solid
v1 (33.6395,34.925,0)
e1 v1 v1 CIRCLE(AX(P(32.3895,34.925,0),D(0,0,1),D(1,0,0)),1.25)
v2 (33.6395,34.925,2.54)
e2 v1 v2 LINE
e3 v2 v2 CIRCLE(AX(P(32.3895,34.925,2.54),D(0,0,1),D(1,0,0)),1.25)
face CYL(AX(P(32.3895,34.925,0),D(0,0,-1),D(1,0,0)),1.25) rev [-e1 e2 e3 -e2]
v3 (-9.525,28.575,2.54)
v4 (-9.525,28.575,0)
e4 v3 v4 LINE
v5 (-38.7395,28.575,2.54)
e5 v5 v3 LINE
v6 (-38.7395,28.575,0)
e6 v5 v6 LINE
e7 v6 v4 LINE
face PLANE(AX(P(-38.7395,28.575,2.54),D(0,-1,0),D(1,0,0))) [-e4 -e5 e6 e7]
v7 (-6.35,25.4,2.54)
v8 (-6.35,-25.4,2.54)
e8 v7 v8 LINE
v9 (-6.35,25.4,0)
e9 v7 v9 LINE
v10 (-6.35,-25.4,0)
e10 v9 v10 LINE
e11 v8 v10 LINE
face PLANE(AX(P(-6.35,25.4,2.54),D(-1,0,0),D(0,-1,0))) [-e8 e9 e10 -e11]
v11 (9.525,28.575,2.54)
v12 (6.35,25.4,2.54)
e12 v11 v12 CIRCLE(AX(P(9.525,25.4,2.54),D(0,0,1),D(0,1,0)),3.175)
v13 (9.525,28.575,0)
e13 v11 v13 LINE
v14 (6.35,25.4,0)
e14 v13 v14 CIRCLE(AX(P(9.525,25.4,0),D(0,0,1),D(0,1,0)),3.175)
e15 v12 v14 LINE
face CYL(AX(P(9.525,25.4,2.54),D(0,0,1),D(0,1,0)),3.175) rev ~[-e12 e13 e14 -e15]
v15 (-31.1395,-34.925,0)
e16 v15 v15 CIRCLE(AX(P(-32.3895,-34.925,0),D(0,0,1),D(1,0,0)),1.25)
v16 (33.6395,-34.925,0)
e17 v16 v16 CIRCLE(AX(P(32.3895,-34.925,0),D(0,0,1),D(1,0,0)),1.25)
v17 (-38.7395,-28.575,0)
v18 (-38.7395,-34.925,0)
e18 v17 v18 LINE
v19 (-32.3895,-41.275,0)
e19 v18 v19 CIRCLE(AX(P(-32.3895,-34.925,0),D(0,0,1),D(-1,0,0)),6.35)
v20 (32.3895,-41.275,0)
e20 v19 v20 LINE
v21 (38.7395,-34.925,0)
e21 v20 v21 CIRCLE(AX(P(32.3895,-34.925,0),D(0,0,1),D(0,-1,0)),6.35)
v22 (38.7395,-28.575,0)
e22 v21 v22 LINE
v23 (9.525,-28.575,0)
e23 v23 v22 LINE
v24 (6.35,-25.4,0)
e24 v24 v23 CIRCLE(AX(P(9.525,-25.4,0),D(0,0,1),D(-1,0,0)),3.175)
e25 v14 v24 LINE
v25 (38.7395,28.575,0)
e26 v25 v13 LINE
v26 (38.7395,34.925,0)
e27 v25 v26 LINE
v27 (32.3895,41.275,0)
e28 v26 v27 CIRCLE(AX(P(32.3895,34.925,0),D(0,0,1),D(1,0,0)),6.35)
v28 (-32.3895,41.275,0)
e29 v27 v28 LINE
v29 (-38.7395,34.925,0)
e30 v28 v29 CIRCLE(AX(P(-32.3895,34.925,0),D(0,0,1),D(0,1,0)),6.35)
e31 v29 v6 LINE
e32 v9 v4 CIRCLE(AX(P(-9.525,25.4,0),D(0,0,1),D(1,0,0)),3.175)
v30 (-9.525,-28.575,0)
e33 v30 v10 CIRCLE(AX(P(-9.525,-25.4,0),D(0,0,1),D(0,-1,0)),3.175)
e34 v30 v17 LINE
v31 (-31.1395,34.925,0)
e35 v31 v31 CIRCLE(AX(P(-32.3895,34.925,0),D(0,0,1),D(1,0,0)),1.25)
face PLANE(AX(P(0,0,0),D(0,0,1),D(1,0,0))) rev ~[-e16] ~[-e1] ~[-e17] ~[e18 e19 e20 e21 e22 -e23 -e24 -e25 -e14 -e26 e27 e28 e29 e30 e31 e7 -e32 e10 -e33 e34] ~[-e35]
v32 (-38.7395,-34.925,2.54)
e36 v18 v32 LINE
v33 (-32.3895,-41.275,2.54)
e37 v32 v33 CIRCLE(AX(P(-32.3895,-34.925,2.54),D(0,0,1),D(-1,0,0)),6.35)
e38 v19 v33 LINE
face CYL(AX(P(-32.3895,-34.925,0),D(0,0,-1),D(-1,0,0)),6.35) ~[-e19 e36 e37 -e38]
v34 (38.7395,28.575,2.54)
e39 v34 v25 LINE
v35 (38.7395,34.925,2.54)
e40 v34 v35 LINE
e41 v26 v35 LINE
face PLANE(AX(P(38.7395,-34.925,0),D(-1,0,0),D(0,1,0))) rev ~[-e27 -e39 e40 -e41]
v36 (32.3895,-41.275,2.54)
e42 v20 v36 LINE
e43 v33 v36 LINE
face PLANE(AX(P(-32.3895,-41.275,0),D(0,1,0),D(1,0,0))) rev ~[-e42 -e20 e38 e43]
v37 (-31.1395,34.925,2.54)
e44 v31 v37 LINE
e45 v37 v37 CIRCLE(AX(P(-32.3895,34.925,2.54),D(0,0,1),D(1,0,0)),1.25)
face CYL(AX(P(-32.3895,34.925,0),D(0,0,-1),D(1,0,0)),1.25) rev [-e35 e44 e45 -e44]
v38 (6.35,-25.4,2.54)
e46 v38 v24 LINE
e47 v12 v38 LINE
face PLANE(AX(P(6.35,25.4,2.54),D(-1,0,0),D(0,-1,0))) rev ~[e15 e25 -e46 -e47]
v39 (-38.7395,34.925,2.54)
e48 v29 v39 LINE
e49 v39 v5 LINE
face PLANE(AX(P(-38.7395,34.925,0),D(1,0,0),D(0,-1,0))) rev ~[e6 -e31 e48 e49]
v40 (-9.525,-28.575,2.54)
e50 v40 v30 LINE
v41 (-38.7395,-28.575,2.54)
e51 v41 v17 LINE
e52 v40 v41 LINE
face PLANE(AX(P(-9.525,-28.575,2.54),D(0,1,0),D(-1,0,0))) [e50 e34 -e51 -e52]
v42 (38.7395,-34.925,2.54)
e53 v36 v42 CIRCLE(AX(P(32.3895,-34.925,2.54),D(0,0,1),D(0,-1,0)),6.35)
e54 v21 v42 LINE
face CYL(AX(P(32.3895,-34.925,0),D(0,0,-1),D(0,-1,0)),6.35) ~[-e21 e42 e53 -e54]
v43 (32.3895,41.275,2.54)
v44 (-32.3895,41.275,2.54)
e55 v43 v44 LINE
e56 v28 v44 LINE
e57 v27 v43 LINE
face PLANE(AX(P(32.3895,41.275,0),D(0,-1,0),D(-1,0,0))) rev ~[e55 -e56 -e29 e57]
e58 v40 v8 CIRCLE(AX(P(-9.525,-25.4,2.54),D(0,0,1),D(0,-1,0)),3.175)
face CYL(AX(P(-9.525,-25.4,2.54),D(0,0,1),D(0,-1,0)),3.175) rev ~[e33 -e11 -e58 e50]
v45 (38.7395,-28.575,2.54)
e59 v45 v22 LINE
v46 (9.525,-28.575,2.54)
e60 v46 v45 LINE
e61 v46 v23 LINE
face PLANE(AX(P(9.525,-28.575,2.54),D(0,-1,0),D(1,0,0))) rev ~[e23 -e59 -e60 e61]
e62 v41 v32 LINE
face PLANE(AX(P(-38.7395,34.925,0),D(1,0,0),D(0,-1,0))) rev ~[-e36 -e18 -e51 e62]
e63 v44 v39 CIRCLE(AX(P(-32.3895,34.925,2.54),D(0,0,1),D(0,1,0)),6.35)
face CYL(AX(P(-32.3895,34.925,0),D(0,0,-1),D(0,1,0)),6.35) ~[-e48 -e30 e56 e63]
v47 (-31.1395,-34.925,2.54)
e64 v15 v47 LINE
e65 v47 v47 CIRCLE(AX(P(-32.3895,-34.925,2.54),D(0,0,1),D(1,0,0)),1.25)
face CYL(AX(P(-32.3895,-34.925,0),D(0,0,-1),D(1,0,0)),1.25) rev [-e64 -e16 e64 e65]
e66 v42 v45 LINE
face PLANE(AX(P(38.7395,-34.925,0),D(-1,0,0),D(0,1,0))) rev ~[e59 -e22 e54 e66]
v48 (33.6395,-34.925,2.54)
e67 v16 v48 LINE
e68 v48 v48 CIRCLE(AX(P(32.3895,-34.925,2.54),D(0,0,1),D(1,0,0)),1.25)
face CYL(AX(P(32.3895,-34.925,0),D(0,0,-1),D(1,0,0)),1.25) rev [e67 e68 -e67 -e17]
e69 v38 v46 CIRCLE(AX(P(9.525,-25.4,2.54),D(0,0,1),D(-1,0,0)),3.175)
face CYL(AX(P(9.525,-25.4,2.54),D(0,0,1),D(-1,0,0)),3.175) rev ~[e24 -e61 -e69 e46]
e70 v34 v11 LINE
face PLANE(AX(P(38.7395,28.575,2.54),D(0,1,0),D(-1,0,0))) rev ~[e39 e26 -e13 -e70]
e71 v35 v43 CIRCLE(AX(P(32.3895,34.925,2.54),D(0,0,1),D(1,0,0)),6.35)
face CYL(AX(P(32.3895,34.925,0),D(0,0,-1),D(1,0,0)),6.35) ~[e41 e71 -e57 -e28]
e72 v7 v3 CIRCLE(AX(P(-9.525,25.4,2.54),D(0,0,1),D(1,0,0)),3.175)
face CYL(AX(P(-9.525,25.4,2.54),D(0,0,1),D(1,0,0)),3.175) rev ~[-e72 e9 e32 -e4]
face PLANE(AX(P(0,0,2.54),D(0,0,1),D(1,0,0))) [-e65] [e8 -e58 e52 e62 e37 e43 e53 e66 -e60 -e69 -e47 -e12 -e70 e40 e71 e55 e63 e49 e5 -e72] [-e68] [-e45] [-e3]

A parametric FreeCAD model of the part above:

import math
import FreeCAD as App
import Part
import Sketcher
from FreeCAD import Vector
Q = App.Units.Quantity

doc = App.newDocument("Part")
body = doc.addObject("PartDesign::Body", "Body")

sketch1 = body.newObject("Sketcher::SketchObject", "Sketch")
sketch1.AttachmentSupport = (doc.getObject("XY_Plane"), [""])
sketch1.MapMode = "FlatFace"
sketch1.addGeometry([
    Part.ArcOfCircle(Part.Circle(Vector(32.4, 34.9, 0), Vector(0, 0, 1), 6.4), math.radians(0), math.radians(90)),
    Part.LineSegment(Vector(32.4, 41.3, 0), Vector(-32.4, 41.3, 0)),
    Part.ArcOfCircle(Part.Circle(Vector(-32.4, 34.9, 0), Vector(0, 0, 1), 6.4), math.radians(90), math.radians(180)),
    Part.LineSegment(Vector(-38.7, 34.9, 0), Vector(-38.7, -34.9, 0)),
    Part.ArcOfCircle(Part.Circle(Vector(-32.4, -34.9, 0), Vector(0, 0, 1), 6.4), math.radians(180), math.radians(270)),
    Part.LineSegment(Vector(-32.4, -41.3, 0), Vector(32.4, -41.3, 0)),
    Part.ArcOfCircle(Part.Circle(Vector(32.4, -34.9, 0), Vector(0, 0, 1), 6.4), math.radians(-90), math.radians(0)),
    Part.LineSegment(Vector(38.7, -34.9, 0), Vector(38.7, 34.9, 0)),
    Part.Circle(Vector(-32.4, -34.9, 0), Vector(0, 0, 1), 1.2),
    Part.Circle(Vector(32.4, -34.9, 0), Vector(0, 0, 1), 1.2),
    Part.Circle(Vector(-32.4, 34.9, 0), Vector(0, 0, 1), 1.2),
    Part.Circle(Vector(32.4, 34.9, 0), Vector(0, 0, 1), 1.2),
], False)
sketch1.addConstraint([
    Sketcher.Constraint("Tangent", 0, 2, 1, 1),
    Sketcher.Constraint("Tangent", 1, 2, 2, 1),
    Sketcher.Constraint("Tangent", 2, 2, 3, 1),
    Sketcher.Constraint("Tangent", 3, 2, 4, 1),
    Sketcher.Constraint("Tangent", 4, 2, 5, 1),
    Sketcher.Constraint("Tangent", 5, 2, 6, 1),
    Sketcher.Constraint("Tangent", 6, 2, 7, 1),
    Sketcher.Constraint("Tangent", 7, 2, 0, 1),
    Sketcher.Constraint("Horizontal", 1),
    Sketcher.Constraint("Vertical", 3),
    Sketcher.Constraint("Horizontal", 5),
    Sketcher.Constraint("Vertical", 7),
    Sketcher.Constraint("Coincident", 8, 3, 4, 3),
    Sketcher.Constraint("Coincident", 9, 3, 6, 3),
    Sketcher.Constraint("Coincident", 10, 3, 2, 3),
    Sketcher.Constraint("Coincident", 11, 3, 0, 3),
    Sketcher.Constraint("Equal", 0, 2),
    Sketcher.Constraint("Equal", 2, 4),
    Sketcher.Constraint("Equal", 4, 6),
    Sketcher.Constraint("Equal", 8, 9),
    Sketcher.Constraint("Equal", 9, 10),
    Sketcher.Constraint("Equal", 10, 11),
    Sketcher.Constraint("Symmetric", 0, 3, 4, 3, -1, 1),
    Sketcher.Constraint("Radius", 0, Q("0.25 in")),
    Sketcher.Constraint("DistanceY", 6, 3, 0, 2, Q("3 in")),
    Sketcher.Constraint("Diameter", 8, 2.5),
    Sketcher.Constraint("DistanceX", 1, 2, 1, 1, 64.779),
])
pad1 = body.newObject("PartDesign::Pad", "Pad")
pad1.Profile = sketch1
pad1.Length = Q("0.1 in")

sketch2 = body.newObject("Sketcher::SketchObject", "Sketch001")
sketch2.AttachmentSupport = (doc.getObject("XY_Plane"), [""])
sketch2.MapMode = "FlatFace"
sketch2.AttachmentOffset = App.Placement(Vector(0, 0, 0.1 * 25.4), App.Rotation())
sketch2.addGeometry([
    Part.LineSegment(Vector(-9.5, 28.6, 0), Vector(-38.7, 28.6, 0)),
    Part.LineSegment(Vector(-38.7, 28.6, 0), Vector(-38.7, -28.6, 0)),
    Part.LineSegment(Vector(-38.7, -28.6, 0), Vector(-9.5, -28.6, 0)),
    Part.ArcOfCircle(Part.Circle(Vector(-9.5, -25.4, 0), Vector(0, 0, 1), 3.2), math.radians(-90), math.radians(0)),
    Part.LineSegment(Vector(-6.3, -25.4, 0), Vector(-6.3, 25.4, 0)),
    Part.ArcOfCircle(Part.Circle(Vector(-9.5, 25.4, 0), Vector(0, 0, 1), 3.2), math.radians(0), math.radians(90)),
    Part.LineSegment(Vector(38.7, -28.6, 0), Vector(38.7, 28.6, 0)),
    Part.LineSegment(Vector(38.7, 28.6, 0), Vector(9.5, 28.6, 0)),
    Part.ArcOfCircle(Part.Circle(Vector(9.5, 25.4, 0), Vector(0, 0, 1), 3.2), math.radians(90), math.radians(180)),
    Part.LineSegment(Vector(6.3, 25.4, 0), Vector(6.3, -25.4, 0)),
    Part.ArcOfCircle(Part.Circle(Vector(9.5, -25.4, 0), Vector(0, 0, 1), 3.2), math.radians(180), math.radians(270)),
    Part.LineSegment(Vector(9.5, -28.6, 0), Vector(38.7, -28.6, 0)),
], False)
sketch2.addConstraint([
    Sketcher.Constraint("Coincident", 0, 2, 1, 1),
    Sketcher.Constraint("Coincident", 1, 2, 2, 1),
    Sketcher.Constraint("Tangent", 2, 2, 3, 1),
    Sketcher.Constraint("Tangent", 3, 2, 4, 1),
    Sketcher.Constraint("Tangent", 4, 2, 5, 1),
    Sketcher.Constraint("Tangent", 5, 2, 0, 1),
    Sketcher.Constraint("Coincident", 6, 2, 7, 1),
    Sketcher.Constraint("Tangent", 7, 2, 8, 1),
    Sketcher.Constraint("Tangent", 8, 2, 9, 1),
    Sketcher.Constraint("Tangent", 9, 2, 10, 1),
    Sketcher.Constraint("Tangent", 10, 2, 11, 1),
    Sketcher.Constraint("Coincident", 11, 2, 6, 1),
    Sketcher.Constraint("Horizontal", 0),
    Sketcher.Constraint("Vertical", 1),
    Sketcher.Constraint("Horizontal", 2),
    Sketcher.Constraint("Vertical", 4),
    Sketcher.Constraint("Vertical", 6),
    Sketcher.Constraint("Horizontal", 7),
    Sketcher.Constraint("Vertical", 9),
    Sketcher.Constraint("Horizontal", 11),
    Sketcher.Constraint("Equal", 3, 5),
    Sketcher.Constraint("Equal", 5, 8),
    Sketcher.Constraint("Equal", 8, 10),
    Sketcher.Constraint("Symmetric", 3, 3, 8, 3, -1, 1),
    Sketcher.Constraint("Symmetric", 0, 2, 11, 2, -1, 1),
    Sketcher.Constraint("Horizontal", 5, 3, 8, 3),
    Sketcher.Constraint("Radius", 3, Q("0.125 in")),
    Sketcher.Constraint("DistanceY", 4, 1, 4, 2, Q("2 in")),
    Sketcher.Constraint("DistanceX", 3, 2, -1, 1, Q("0.25 in")),
    Sketcher.Constraint("DistanceX", 0, 2, 0, 1, 29.2145),
])
pocket1 = body.newObject("PartDesign::Pocket", "Pocket")
pocket1.Profile = sketch2
pocket1.Length = Q("0.1 in")

doc.recompute()
